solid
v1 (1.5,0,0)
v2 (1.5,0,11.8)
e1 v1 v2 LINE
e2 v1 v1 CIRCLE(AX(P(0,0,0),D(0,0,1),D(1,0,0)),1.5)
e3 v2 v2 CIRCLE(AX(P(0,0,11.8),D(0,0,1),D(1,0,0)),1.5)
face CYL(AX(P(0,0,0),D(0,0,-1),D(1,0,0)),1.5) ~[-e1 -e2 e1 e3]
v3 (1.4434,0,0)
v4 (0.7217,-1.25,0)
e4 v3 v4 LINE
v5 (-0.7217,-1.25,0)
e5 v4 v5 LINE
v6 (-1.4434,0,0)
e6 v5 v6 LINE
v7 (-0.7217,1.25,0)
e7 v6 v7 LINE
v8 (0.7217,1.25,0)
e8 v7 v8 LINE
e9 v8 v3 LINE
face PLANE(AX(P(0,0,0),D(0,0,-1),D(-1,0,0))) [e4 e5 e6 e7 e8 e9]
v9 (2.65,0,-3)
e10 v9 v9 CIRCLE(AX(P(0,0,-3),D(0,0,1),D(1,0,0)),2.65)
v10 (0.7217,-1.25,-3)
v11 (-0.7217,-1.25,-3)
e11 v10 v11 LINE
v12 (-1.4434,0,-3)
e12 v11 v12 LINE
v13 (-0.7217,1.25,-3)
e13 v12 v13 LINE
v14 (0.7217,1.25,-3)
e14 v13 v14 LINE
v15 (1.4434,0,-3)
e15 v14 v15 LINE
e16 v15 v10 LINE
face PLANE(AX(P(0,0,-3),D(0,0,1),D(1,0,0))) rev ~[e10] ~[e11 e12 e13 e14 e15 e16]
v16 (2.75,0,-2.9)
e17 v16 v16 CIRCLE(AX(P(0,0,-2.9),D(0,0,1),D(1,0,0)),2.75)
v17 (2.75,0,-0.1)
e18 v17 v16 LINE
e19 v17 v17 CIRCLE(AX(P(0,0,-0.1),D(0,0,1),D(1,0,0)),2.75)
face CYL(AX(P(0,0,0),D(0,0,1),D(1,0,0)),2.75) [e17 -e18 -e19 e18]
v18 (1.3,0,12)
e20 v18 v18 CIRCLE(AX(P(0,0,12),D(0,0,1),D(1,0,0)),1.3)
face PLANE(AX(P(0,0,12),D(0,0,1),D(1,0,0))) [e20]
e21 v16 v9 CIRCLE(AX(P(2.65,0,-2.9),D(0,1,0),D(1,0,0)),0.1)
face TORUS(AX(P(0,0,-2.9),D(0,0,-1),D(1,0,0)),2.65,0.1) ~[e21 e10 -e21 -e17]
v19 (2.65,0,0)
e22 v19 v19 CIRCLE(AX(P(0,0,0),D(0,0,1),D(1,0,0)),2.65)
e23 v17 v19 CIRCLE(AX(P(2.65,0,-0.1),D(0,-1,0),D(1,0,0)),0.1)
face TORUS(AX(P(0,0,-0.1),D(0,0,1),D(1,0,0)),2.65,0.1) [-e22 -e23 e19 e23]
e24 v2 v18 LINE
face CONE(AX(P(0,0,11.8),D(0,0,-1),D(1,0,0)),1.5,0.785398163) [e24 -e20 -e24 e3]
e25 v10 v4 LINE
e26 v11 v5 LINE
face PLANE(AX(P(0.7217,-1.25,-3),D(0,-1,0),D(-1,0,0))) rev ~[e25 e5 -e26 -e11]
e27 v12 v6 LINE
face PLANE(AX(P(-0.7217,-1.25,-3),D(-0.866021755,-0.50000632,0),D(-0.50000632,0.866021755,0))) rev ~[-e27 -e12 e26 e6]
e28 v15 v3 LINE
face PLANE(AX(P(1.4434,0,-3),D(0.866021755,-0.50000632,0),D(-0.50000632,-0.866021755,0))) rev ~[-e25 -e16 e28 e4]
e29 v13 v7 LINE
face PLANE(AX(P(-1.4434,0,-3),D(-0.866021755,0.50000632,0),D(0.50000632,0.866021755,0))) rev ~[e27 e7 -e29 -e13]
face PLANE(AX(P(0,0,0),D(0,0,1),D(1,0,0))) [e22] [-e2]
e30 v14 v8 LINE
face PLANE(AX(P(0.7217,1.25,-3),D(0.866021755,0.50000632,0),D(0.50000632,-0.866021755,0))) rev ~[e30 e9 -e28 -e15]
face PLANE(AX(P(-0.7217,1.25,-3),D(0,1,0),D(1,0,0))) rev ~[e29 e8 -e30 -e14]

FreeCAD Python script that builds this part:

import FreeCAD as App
import Part
import Sketcher

V = App.Vector
Q = App.Units.Quantity


def edges_at(feature, points):
    """Names of the edges that pass closest to the given points."""
    edges = feature.Shape.Edges
    near = lambda p: min(range(len(edges)), key=lambda i: edges[i].distToShape(Part.Vertex(*p))[0])
    return sorted({f"Edge{near(p) + 1}" for p in points})


def add_polygon(sketch, points):
    """Adds a closed chain of lines whose ends are joined by coincident constraints."""
    first, n = sketch.GeometryCount, len(points)
    for a, b in zip(points, points[1:] + points[:1]):
        sketch.addGeometry(Part.LineSegment(App.Vector(*a, 0), App.Vector(*b, 0)), False)
    for i in range(n):
        sketch.addConstraint(Sketcher.Constraint("Coincident", first + i, 2, first + (i + 1) % n, 1))

doc = App.newDocument("Part")
params = doc.addObject("Spreadsheet::Sheet", "Params")
for row, (alias, value) in enumerate([
    ("sketch1_diameter", "5.5 mm"),
    ("pad1_length", "3 mm"),
    ("sketch2_diameter", "3 mm"),
    ("pad2_length", "12 mm"),
    ("pocket1_length", "3 mm"),
    ("fillet_radius", "0.1 mm"),
    ("fillet2_radius", "0.1 mm"),
    ("chamfer_size", "0.2 mm"),
], start=1):
    params.set(f"A{row}", alias)
    params.set(f"B{row}", "=" + value)
    params.setAlias(f"B{row}", alias)

body = doc.addObject("PartDesign::Body", "Body")

# Sketch on XY plane
sketch1 = body.newObject("Sketcher::SketchObject", "Sketch")
sketch1.AttachmentSupport = (doc.getObject("XY_Plane"), [""])
sketch1.MapMode = "FlatFace"
sketch1.addGeometry(Part.Circle(V(0, 0, 0), V(0, 0, 1), 2.75), False)
sketch1.addConstraint([
    Sketcher.Constraint("Coincident", 0, 3, -1, 1),
    Sketcher.Constraint("Diameter", 0, Q("5.5 mm")),
])
sketch1.setExpression("Constraints[1]", "Params.sketch1_diameter")
pad1 = body.newObject("PartDesign::Pad", "Pad")
pad1.Profile = sketch1
pad1.setExpression("Length", "Params.pad1_length")
pad1.Reversed = True

# Sketch on XY plane
sketch2 = body.newObject("Sketcher::SketchObject", "Sketch001")
sketch2.AttachmentSupport = (doc.getObject("XY_Plane"), [""])
sketch2.MapMode = "FlatFace"
sketch2.addGeometry(Part.Circle(V(0, 0, 0), V(0, 0, 1), 1.5), False)
sketch2.addConstraint([
    Sketcher.Constraint("Coincident", 0, 3, -1, 1),
    Sketcher.Constraint("Diameter", 0, Q("3 mm")),
])
sketch2.setExpression("Constraints[1]", "Params.sketch2_diameter")
pad2 = body.newObject("PartDesign::Pad", "Pad001")
pad2.Profile = sketch2
pad2.setExpression("Length", "Params.pad2_length")

# Sketch on XY plane
sketch3 = body.newObject("Sketcher::SketchObject", "Sketch002")
sketch3.AttachmentSupport = (doc.getObject("XY_Plane"), [""])
sketch3.MapMode = "FlatFace"
sketch3.AttachmentOffset = App.Placement(V(0, 0, -3), App.Rotation())
add_polygon(sketch3, [(-0.7217, 1.25), (0.7217, 1.25), (1.4434, 0), (0.7217, -1.25), (-0.7217, -1.25), (-1.4434, 0)])  # lines 0-5
sketch3.addConstraint([
    Sketcher.Constraint("Horizontal", 0),
    Sketcher.Constraint("Horizontal", 3),
    Sketcher.Constraint("Symmetric", 0, 2, 3, 2, -1, 1),
    Sketcher.Constraint("Symmetric", 1, 2, 4, 2, -1, 1),
    Sketcher.Constraint("PointOnObject", 1, 2, -1),
    Sketcher.Constraint("Parallel", 2, 5),
    Sketcher.Constraint("Vertical", 0, 2, 2, 2),
    Sketcher.Constraint("Angle", 1, Q("-59.9996 deg")),
    Sketcher.Constraint("DistanceY", 2, 2, 0, 2, Q("2.5 mm")),
    Sketcher.Constraint("DistanceX", 0, 1, 0, 2, Q("1.4434 mm")),
])
pocket1 = body.newObject("PartDesign::Pocket", "Pocket")
pocket1.Profile = sketch3
pocket1.setExpression("Length", "Params.pocket1_length")
pocket1.Reversed = True
doc.recompute()

fillet = body.newObject("PartDesign::Fillet", "Fillet")
fillet.Base = (pocket1, edges_at(pocket1, [(-2.75, 0, -3)]))
fillet.setExpression("Radius", "Params.fillet_radius")
doc.recompute()

fillet2 = body.newObject("PartDesign::Fillet", "Fillet001")
fillet2.Base = (fillet, edges_at(fillet, [(-2.75, 0, 0)]))
fillet2.setExpression("Radius", "Params.fillet2_radius")
doc.recompute()

chamfer = body.newObject("PartDesign::Chamfer", "Chamfer")
chamfer.Base = (fillet2, edges_at(fillet2, [(-1.5, 0, 12)]))
chamfer.setExpression("Size", "Params.chamfer_size")

doc.recompute()
